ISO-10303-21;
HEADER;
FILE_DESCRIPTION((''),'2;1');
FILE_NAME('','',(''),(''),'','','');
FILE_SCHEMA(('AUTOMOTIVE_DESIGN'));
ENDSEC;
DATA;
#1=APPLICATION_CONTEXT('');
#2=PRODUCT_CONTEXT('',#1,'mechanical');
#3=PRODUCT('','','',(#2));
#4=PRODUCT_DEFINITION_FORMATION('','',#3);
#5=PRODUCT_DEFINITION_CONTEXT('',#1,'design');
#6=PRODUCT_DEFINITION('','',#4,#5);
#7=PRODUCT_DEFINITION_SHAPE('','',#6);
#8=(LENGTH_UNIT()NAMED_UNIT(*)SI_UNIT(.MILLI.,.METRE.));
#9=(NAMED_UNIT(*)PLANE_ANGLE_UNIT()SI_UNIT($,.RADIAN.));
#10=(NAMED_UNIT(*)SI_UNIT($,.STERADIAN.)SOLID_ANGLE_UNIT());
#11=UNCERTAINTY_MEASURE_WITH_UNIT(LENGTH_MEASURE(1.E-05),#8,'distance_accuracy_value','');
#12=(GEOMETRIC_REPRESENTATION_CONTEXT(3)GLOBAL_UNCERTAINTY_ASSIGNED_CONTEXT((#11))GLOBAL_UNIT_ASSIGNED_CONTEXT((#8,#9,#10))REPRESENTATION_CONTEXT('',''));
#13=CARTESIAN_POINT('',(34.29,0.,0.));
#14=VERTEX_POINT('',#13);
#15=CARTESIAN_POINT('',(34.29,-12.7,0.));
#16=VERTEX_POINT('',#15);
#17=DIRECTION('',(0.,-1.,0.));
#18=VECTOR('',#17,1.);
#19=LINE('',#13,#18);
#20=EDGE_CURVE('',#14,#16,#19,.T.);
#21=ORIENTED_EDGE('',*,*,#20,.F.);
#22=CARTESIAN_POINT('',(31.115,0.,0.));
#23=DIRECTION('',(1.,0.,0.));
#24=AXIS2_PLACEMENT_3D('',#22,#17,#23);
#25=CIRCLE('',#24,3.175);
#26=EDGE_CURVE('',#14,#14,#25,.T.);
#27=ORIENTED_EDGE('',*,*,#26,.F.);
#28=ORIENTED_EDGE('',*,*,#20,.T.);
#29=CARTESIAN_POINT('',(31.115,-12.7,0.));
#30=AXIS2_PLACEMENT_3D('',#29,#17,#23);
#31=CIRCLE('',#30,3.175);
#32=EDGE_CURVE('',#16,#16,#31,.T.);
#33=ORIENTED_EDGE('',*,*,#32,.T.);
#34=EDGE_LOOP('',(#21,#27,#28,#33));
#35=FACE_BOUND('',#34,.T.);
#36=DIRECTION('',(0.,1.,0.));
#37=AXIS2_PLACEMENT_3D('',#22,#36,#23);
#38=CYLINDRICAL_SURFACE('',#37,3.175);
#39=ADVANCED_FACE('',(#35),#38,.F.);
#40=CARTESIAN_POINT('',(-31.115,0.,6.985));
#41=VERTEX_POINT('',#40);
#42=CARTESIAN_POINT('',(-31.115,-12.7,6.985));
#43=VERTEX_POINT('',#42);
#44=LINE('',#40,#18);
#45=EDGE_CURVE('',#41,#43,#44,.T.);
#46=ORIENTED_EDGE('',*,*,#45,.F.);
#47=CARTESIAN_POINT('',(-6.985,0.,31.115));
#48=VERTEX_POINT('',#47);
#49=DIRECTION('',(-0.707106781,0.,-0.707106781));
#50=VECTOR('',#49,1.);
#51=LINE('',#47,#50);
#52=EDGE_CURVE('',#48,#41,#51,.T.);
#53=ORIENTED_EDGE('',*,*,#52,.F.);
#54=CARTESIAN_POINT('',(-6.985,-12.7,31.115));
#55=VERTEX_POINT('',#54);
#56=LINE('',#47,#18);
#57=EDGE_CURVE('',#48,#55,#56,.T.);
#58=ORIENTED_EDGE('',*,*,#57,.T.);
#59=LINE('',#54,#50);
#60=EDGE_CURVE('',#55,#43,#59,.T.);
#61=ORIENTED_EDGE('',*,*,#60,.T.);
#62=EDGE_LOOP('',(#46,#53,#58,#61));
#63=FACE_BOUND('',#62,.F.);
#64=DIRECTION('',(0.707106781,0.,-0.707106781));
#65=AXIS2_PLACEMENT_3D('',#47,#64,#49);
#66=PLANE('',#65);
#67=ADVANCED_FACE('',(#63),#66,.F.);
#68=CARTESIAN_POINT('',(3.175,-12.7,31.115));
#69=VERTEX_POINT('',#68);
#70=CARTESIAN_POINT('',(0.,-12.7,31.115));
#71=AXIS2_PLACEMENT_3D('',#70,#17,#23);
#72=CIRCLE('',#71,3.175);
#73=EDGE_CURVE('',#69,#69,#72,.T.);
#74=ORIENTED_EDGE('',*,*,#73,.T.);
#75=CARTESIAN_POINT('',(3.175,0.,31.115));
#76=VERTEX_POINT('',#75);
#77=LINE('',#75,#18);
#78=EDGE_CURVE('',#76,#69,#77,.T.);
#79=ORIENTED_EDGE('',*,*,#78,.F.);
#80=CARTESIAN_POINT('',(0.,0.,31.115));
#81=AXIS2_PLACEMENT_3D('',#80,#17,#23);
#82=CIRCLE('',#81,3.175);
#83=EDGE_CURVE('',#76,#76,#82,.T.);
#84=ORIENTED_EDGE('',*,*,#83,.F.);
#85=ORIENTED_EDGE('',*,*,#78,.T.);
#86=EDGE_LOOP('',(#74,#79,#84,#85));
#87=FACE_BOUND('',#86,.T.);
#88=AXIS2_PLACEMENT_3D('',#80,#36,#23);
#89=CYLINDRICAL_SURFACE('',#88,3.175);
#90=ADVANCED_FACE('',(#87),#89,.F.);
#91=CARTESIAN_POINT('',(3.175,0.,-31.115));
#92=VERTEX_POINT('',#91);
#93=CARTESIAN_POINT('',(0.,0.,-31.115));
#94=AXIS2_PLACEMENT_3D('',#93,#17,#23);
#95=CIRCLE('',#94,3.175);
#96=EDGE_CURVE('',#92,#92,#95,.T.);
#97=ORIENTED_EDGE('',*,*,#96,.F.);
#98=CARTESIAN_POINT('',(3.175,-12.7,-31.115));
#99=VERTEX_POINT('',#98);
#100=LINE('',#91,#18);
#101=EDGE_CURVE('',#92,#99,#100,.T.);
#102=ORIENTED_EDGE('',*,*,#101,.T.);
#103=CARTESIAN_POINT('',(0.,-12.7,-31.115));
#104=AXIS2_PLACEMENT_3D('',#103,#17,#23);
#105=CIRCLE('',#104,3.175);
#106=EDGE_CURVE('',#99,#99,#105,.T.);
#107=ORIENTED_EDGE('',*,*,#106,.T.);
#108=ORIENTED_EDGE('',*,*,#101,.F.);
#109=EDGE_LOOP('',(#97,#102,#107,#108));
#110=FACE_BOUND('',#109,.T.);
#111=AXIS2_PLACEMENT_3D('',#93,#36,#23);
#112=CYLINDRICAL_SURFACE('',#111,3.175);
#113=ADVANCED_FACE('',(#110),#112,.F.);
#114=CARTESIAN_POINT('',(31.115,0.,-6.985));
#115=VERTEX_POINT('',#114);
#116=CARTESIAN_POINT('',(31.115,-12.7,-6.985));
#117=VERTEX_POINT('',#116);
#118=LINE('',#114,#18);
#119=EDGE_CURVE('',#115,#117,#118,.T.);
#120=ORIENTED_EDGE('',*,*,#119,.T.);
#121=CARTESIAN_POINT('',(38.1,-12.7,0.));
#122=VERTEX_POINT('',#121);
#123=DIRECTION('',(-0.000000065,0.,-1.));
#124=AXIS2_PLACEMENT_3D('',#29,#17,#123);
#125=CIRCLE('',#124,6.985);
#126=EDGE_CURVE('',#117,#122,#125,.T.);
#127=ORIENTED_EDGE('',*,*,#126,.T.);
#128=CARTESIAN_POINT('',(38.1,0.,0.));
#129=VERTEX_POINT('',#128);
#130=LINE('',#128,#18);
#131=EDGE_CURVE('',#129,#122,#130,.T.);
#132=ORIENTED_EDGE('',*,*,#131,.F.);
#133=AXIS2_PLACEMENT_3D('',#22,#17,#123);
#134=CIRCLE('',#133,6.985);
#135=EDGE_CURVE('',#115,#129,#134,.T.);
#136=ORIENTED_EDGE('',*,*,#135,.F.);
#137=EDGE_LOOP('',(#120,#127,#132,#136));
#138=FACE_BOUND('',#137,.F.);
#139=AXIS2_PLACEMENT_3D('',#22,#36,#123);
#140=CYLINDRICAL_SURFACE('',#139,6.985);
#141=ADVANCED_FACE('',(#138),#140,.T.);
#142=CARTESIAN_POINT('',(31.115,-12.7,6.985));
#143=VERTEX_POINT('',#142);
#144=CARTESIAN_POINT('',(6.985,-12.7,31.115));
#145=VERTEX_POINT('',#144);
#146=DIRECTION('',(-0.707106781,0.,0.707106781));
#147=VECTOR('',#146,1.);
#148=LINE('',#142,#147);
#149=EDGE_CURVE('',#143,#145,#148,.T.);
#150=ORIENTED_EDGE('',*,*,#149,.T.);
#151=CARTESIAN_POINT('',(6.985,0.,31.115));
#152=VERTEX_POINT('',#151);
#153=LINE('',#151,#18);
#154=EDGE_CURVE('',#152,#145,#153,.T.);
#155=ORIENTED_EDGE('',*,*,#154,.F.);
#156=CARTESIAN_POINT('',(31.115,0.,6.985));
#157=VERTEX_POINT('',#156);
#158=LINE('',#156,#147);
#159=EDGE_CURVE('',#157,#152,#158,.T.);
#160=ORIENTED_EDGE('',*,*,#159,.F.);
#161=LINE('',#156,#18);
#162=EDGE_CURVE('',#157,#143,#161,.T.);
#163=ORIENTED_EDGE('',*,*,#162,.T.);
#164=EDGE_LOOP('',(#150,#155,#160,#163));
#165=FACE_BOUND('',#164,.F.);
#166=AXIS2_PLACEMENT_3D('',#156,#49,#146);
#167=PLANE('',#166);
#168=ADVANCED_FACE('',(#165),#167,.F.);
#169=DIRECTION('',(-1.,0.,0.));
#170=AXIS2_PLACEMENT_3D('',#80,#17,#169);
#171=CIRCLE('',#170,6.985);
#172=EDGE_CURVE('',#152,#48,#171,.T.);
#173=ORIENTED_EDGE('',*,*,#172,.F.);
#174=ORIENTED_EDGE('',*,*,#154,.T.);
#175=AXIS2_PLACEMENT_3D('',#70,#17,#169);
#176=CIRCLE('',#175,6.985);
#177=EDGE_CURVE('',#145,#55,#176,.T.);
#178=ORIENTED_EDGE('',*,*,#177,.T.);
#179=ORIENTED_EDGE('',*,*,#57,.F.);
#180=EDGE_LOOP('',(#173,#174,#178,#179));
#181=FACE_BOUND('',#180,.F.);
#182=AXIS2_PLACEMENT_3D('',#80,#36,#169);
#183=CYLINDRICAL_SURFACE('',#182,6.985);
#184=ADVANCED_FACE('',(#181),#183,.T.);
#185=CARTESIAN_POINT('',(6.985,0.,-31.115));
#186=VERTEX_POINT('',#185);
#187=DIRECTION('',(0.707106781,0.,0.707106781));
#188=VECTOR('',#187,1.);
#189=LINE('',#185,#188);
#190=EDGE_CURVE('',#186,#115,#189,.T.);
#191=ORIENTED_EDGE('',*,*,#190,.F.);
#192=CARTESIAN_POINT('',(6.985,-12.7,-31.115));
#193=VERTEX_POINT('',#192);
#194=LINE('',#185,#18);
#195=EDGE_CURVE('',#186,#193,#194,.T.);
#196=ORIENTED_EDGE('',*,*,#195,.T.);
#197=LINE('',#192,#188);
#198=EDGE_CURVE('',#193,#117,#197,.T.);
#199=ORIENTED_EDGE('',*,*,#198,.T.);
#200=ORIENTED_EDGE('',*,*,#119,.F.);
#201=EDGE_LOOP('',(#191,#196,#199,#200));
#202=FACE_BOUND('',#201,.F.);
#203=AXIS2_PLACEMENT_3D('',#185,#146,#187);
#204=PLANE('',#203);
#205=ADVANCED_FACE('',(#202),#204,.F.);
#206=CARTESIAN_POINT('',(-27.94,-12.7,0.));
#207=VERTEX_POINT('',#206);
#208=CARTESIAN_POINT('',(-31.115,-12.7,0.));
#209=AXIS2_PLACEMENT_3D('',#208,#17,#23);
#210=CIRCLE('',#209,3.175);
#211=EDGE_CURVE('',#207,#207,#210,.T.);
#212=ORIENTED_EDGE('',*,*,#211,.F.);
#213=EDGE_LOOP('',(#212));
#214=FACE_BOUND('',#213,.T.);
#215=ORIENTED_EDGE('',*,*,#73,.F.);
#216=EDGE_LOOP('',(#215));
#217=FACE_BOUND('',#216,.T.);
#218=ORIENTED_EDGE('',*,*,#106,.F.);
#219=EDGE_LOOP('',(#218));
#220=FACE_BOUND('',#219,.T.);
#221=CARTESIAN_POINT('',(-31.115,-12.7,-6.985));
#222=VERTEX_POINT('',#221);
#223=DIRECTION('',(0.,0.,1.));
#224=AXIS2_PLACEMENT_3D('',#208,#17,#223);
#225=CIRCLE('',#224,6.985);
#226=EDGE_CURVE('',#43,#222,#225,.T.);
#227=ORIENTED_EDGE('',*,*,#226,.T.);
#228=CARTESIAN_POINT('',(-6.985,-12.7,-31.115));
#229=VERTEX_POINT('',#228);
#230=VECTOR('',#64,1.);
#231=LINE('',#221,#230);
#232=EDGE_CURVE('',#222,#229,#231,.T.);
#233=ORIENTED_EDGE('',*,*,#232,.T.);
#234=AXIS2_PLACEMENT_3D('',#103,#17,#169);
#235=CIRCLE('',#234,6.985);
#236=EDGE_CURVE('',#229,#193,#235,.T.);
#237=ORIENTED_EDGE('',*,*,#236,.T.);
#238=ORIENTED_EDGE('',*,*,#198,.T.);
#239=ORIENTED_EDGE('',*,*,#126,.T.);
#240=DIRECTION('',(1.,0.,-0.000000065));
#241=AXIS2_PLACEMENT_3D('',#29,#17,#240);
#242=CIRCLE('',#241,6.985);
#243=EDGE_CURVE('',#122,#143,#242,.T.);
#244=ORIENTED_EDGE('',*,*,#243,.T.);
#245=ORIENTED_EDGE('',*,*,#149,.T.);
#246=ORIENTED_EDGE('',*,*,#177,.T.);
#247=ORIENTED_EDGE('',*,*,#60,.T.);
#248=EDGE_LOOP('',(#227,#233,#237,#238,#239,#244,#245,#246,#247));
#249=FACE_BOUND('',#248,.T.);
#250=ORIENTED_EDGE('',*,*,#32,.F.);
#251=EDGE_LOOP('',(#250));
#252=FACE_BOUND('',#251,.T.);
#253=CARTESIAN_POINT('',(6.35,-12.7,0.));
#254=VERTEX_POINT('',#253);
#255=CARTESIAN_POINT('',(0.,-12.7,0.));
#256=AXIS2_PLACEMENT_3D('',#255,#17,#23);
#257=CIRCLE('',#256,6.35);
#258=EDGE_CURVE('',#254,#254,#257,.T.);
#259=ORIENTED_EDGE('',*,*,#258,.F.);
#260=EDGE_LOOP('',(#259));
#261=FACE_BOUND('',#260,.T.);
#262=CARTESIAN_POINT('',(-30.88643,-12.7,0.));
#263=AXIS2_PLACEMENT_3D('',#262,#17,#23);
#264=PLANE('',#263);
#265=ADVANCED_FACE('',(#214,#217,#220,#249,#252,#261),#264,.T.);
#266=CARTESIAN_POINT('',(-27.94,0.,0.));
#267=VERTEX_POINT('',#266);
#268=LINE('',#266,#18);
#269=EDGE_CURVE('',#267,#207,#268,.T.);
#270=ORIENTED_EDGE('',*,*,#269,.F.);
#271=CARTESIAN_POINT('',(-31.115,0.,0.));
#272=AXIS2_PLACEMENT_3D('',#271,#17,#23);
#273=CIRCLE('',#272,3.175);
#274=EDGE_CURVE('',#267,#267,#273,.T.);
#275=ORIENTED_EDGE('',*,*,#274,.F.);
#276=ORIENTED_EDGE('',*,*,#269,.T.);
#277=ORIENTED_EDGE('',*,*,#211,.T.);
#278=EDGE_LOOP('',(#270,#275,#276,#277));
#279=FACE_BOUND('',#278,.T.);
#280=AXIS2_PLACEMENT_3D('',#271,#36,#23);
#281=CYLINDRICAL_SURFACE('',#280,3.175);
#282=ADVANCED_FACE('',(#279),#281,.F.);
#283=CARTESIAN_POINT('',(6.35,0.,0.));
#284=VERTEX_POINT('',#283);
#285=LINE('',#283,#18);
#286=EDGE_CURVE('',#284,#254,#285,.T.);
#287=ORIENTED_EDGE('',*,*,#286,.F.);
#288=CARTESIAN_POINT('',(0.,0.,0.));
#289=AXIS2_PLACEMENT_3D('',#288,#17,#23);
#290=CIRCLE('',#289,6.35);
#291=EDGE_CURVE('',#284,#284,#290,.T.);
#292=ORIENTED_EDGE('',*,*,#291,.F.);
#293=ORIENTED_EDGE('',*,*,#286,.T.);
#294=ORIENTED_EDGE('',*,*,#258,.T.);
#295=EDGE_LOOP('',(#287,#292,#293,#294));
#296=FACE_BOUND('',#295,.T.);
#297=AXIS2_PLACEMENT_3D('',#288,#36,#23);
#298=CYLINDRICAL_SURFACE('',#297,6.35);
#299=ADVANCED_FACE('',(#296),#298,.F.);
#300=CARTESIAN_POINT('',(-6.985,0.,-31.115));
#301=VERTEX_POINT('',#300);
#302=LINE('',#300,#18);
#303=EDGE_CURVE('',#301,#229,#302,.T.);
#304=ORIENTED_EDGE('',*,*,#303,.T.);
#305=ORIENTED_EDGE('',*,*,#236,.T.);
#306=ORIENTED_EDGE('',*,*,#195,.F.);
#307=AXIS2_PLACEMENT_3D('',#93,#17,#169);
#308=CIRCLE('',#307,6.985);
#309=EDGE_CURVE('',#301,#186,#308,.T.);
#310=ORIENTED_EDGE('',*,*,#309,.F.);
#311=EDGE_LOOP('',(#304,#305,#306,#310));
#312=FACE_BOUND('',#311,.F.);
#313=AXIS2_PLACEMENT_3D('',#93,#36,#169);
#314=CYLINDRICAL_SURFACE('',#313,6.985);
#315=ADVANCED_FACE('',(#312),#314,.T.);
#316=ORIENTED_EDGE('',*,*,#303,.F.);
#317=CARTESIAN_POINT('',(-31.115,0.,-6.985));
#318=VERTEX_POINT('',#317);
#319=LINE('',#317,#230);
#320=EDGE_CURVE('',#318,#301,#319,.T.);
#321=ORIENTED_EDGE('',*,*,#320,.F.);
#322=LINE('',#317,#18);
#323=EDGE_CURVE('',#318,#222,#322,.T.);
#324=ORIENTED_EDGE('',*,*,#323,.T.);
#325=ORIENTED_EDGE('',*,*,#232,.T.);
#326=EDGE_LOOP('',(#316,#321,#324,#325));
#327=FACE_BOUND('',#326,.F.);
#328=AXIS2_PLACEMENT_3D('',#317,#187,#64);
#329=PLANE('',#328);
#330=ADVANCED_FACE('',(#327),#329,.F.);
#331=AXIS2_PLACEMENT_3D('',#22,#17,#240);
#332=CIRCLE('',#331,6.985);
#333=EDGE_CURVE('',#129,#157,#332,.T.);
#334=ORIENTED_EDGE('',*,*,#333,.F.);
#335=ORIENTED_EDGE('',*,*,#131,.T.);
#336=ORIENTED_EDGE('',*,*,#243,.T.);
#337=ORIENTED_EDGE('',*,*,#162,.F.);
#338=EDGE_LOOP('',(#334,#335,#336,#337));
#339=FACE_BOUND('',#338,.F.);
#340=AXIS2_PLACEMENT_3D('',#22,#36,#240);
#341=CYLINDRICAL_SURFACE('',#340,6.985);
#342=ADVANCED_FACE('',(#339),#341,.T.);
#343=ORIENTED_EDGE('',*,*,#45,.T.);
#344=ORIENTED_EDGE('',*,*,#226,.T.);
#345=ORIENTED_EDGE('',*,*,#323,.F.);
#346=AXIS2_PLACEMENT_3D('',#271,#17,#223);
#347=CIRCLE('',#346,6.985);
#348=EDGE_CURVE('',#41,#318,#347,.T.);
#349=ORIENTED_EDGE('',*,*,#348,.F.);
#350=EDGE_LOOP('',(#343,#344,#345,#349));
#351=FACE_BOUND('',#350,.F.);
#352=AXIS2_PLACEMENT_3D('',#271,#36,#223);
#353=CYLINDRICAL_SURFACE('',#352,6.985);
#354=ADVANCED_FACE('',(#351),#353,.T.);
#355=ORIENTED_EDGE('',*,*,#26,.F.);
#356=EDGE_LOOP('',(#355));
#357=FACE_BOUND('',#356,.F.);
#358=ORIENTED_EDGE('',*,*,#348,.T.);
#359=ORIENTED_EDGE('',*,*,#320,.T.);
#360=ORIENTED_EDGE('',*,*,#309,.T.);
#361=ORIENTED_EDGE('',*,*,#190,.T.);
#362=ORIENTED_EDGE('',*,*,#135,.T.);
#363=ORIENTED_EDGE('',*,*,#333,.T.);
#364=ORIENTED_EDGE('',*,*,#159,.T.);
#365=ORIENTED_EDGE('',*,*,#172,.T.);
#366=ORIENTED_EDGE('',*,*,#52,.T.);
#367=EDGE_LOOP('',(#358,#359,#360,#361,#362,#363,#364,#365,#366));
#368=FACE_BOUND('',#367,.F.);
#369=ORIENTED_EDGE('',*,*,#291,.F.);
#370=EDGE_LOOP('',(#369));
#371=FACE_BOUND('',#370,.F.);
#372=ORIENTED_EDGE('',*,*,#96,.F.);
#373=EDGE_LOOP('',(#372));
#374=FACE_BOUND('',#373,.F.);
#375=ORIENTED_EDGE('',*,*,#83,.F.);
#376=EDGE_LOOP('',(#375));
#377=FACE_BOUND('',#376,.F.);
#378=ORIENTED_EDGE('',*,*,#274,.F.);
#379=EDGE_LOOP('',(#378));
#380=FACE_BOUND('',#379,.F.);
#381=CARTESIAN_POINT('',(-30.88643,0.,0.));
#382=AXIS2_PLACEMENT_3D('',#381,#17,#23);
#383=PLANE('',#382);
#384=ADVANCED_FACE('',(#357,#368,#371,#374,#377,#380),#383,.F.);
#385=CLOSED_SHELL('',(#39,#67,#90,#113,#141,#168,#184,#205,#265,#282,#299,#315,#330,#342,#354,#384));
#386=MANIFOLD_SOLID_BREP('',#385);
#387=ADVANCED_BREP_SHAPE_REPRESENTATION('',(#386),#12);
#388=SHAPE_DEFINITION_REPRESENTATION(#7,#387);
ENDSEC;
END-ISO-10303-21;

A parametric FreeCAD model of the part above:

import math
import FreeCAD as App
import Part
import Sketcher
from FreeCAD import Vector
Q = App.Units.Quantity

doc = App.newDocument("Part")
params = doc.addObject("Spreadsheet::Sheet", "Params")
for row, (alias, value) in enumerate([
    ("sketch1_diameter", "0.5 in"),
    ("sketch1_diameter2", "0.25 in"),
    ("sketch1_radius", "0.275 in"),
    ("pad1_length", "0.5 in"),
], start=1):
    params.set(f"A{row}", alias)
    params.set(f"B{row}", "=" + value)
    params.setAlias(f"B{row}", alias)

body = doc.addObject("PartDesign::Body", "Body")

sketch1 = doc.addObject("Sketcher::SketchObject", "Sketch")
body.addObject(sketch1)
sketch1.AttachmentSupport = (doc.XZ_Plane, [""])
sketch1.MapMode = "FlatFace"
sketch1.addGeometry([
    Part.ArcOfCircle(Part.Circle(Vector(-31.1, 0, 0), Vector(0, 0, 1), 7), math.radians(90), math.radians(270)),
    Part.LineSegment(Vector(-31.1, -7, 0), Vector(-7, -31.1, 0)),
    Part.ArcOfCircle(Part.Circle(Vector(0, -31.1, 0), Vector(0, 0, 1), 7), math.radians(180), math.radians(360)),
    Part.LineSegment(Vector(7, -31.1, 0), Vector(31.1, -7, 0)),
    Part.ArcOfCircle(Part.Circle(Vector(31.1, 0, 0), Vector(0, 0, 1), 7), math.radians(-90), math.radians(0)),
    Part.ArcOfCircle(Part.Circle(Vector(31.1, 0, 0), Vector(0, 0, 1), 7), math.radians(0), math.radians(90)),
    Part.LineSegment(Vector(31.1, 7, 0), Vector(7, 31.1, 0)),
    Part.ArcOfCircle(Part.Circle(Vector(0, 31.1, 0), Vector(0, 0, 1), 7), math.radians(0), math.radians(180)),
    Part.LineSegment(Vector(-7, 31.1, 0), Vector(-31.1, 7, 0)),
    Part.Circle(Vector(0, -31.1, 0), Vector(0, 0, 1), 3.2),
    Part.Circle(Vector(-31.1, 0, 0), Vector(0, 0, 1), 3.2),
    Part.Circle(Vector(0, 0, 0), Vector(0, 0, 1), 6.3),
    Part.Circle(Vector(31.1, 0, 0), Vector(0, 0, 1), 3.2),
    Part.Circle(Vector(0, 31.1, 0), Vector(0, 0, 1), 3.2),
], False)
sketch1.addConstraint([
    Sketcher.Constraint("Coincident", 0, 2, 1, 1),
    Sketcher.Constraint("Coincident", 1, 2, 2, 1),
    Sketcher.Constraint("Coincident", 2, 2, 3, 1),
    Sketcher.Constraint("Coincident", 3, 2, 4, 1),
    Sketcher.Constraint("Tangent", 4, 2, 5, 1),
    Sketcher.Constraint("Coincident", 5, 2, 6, 1),
    Sketcher.Constraint("Coincident", 6, 2, 7, 1),
    Sketcher.Constraint("Coincident", 7, 2, 8, 1),
    Sketcher.Constraint("Coincident", 8, 2, 0, 1),
    Sketcher.Constraint("Coincident", 11, 3, -1, 1),
    Sketcher.Constraint("Coincident", 9, 3, 2, 3),
    Sketcher.Constraint("Coincident", 10, 3, 0, 3),
    Sketcher.Constraint("Coincident", 12, 3, 4, 3),
    Sketcher.Constraint("Coincident", 13, 3, 7, 3),
    Sketcher.Constraint("Equal", 0, 2),
    Sketcher.Constraint("Equal", 2, 4),
    Sketcher.Constraint("Equal", 4, 5),
    Sketcher.Constraint("Equal", 5, 7),
    Sketcher.Constraint("Equal", 9, 10),
    Sketcher.Constraint("Equal", 10, 12),
    Sketcher.Constraint("Equal", 12, 13),
    Sketcher.Constraint("Symmetric", 0, 3, 4, 3, -1, 1),
    Sketcher.Constraint("Symmetric", 2, 3, 7, 3, -1, 1),
    Sketcher.Constraint("Symmetric", 1, 2, 2, 2, -2),
    Sketcher.Constraint("Symmetric", 0, 2, 3, 2, -2),
    Sketcher.Constraint("PointOnObject", 4, 2, -1),
    Sketcher.Constraint("Perpendicular", 1, 3),
    Sketcher.Constraint("Perpendicular", 3, 6),
    Sketcher.Constraint("Perpendicular", 6, 8),
    Sketcher.Constraint("Horizontal", 9, 3, 1, 2),
    Sketcher.Constraint("Horizontal", 13, 3, 6, 2),
    Sketcher.Constraint("Horizontal", 6, 2, 7, 2),
    Sketcher.Constraint("Vertical", 10, 3, 0, 2),
    Sketcher.Constraint("Diameter", 11, Q("0.5 in")),
    Sketcher.Constraint("Diameter", 9, Q("0.25 in")),
    Sketcher.Constraint("Radius", 0, Q("0.275 in")),
    Sketcher.Constraint("DistanceX", -1, 1, 4, 2, Q("1.5 in")),
])
sketch1.setExpression("Constraints[33]", "Params.sketch1_diameter")
sketch1.setExpression("Constraints[34]", "Params.sketch1_diameter2")
sketch1.setExpression("Constraints[35]", "Params.sketch1_radius")
pad1 = doc.addObject("PartDesign::Pad", "Pad")
body.addObject(pad1)
pad1.Profile = sketch1
pad1.setExpression("Length", "Params.pad1_length")

doc.recompute()
